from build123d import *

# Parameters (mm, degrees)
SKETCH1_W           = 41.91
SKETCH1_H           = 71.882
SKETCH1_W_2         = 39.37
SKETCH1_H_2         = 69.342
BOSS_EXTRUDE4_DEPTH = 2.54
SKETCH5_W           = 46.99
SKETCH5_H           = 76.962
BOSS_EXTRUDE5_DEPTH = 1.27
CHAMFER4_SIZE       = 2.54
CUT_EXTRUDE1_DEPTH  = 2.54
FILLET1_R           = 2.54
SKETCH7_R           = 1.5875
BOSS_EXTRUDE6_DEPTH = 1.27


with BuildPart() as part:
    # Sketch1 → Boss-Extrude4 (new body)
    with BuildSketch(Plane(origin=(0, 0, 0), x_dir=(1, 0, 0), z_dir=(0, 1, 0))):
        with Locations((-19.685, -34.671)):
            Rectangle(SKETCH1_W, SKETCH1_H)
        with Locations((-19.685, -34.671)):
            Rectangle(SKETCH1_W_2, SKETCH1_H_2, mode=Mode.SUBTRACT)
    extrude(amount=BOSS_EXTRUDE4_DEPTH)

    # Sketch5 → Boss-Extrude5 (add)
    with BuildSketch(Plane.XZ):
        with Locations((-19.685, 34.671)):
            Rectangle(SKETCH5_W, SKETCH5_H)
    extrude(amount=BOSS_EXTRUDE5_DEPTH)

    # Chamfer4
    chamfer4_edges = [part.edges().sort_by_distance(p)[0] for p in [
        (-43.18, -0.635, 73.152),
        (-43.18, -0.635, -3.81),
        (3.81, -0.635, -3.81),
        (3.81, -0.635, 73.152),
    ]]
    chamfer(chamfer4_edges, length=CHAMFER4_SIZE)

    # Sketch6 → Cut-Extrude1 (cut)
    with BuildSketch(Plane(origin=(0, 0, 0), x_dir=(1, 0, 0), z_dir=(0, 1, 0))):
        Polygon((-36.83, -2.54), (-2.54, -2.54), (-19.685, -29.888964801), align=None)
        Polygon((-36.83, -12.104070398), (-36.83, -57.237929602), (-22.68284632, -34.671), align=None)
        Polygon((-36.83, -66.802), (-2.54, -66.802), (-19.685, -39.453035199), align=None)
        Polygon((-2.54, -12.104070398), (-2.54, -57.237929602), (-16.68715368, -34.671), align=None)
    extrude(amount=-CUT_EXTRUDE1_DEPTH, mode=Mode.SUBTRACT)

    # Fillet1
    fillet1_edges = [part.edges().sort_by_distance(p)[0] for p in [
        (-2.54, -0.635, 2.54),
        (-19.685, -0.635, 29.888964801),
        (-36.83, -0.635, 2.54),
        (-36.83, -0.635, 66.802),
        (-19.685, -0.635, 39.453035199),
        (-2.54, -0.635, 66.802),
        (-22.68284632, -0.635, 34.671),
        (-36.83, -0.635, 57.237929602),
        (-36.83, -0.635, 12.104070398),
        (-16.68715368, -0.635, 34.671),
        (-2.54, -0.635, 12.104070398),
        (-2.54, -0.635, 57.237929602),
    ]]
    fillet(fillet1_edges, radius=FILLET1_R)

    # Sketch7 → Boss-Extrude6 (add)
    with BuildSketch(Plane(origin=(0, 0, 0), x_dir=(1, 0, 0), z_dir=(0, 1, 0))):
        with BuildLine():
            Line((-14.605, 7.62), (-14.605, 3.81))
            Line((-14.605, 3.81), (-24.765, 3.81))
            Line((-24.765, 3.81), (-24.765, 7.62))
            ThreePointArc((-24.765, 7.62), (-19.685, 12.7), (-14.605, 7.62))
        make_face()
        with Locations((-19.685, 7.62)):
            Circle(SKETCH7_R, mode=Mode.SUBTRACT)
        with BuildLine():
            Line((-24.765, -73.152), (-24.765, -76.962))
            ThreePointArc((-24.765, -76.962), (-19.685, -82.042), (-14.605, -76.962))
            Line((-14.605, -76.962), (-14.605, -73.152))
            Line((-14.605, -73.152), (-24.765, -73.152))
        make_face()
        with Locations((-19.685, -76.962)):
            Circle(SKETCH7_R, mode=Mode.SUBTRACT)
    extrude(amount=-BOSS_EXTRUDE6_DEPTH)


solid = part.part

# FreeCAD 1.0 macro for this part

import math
import FreeCAD as App
import Part
import Sketcher

V = App.Vector
Q = App.Units.Quantity


def edges_at(feature, points):
    """Names of the edges that pass closest to the given points."""
    edges = feature.Shape.Edges
    near = lambda p: min(range(len(edges)), key=lambda i: edges[i].distToShape(Part.Vertex(*p))[0])
    return sorted({f"Edge{near(p) + 1}" for p in points})


def add_polygon(sketch, points):
    """Adds a closed chain of lines whose ends are joined by coincident constraints."""
    first, n = sketch.GeometryCount, len(points)
    for a, b in zip(points, points[1:] + points[:1]):
        sketch.addGeometry(Part.LineSegment(App.Vector(*a, 0), App.Vector(*b, 0)), False)
    for i in range(n):
        sketch.addConstraint(Sketcher.Constraint("Coincident", first + i, 2, first + (i + 1) % n, 1))

doc = App.newDocument("Part")
body = doc.addObject("PartDesign::Body", "Body")

# Sketch on XZ plane
sketch1 = body.newObject("Sketcher::SketchObject", "Sketch")
sketch1.AttachmentSupport = (doc.getObject("XZ_Plane"), [""])
sketch1.MapMode = "FlatFace"
add_polygon(sketch1, [(-41, -1), (-41, 71), (1, 71), (1, -1)])  # lines 0-3
add_polygon(sketch1, [(0, 69), (-39, 69), (-39, 0), (0, 0)])  # lines 4-7
sketch1.addConstraint(Sketcher.Constraint("Vertical", 0))
sketch1.addConstraint(Sketcher.Constraint("Horizontal", 1))
sketch1.addConstraint(Sketcher.Constraint("Vertical", 2))
sketch1.addConstraint(Sketcher.Constraint("Horizontal", 3))
sketch1.addConstraint(Sketcher.Constraint("Horizontal", 4))
sketch1.addConstraint(Sketcher.Constraint("Vertical", 5))
sketch1.addConstraint(Sketcher.Constraint("Horizontal", 6))
sketch1.addConstraint(Sketcher.Constraint("Vertical", 7))
sketch1.addConstraint(Sketcher.Constraint("Coincident", 6, 2, -1, 1))
sketch1.addConstraint(Sketcher.Constraint("DistanceX", 1, 1, 1, 2, Q("1.65 in")))
sketch1.addConstraint(Sketcher.Constraint("DistanceX", 4, 2, 4, 1, Q("1.55 in")))
sketch1.addConstraint(Sketcher.Constraint("DistanceY", 0, 1, 0, 2, Q("2.83 in")))
sketch1.addConstraint(Sketcher.Constraint("DistanceY", 5, 2, 5, 1, Q("2.73 in")))
sketch1.addConstraint(Sketcher.Constraint("DistanceX", 0, 2, -1, 1, Q("1.6 in")))
sketch1.addConstraint(Sketcher.Constraint("DistanceY", -1, 1, 0, 2, Q("2.78 in")))
pad1 = body.newObject("PartDesign::Pad", "Pad")
pad1.Profile = sketch1
pad1.Length = Q("0.1 in")
pad1.Reversed = True

# Sketch on XZ plane
sketch2 = body.newObject("Sketcher::SketchObject", "Sketch001")
sketch2.AttachmentSupport = (doc.getObject("XZ_Plane"), [""])
sketch2.MapMode = "FlatFace"
add_polygon(sketch2, [(-43, 73), (-43, -4), (4, -4), (4, 73)])  # lines 0-3
sketch2.addConstraint(Sketcher.Constraint("Vertical", 0))
sketch2.addConstraint(Sketcher.Constraint("Horizontal", 1))
sketch2.addConstraint(Sketcher.Constraint("Vertical", 2))
sketch2.addConstraint(Sketcher.Constraint("Horizontal", 3))
sketch2.addConstraint(Sketcher.Constraint("DistanceX", 1, 1, 1, 2, Q("1.85 in")))
sketch2.addConstraint(Sketcher.Constraint("DistanceY", 0, 2, 0, 1, Q("3.03 in")))
sketch2.addConstraint(Sketcher.Constraint("DistanceX", 0, 2, -1, 1, Q("1.7 in")))
sketch2.addConstraint(Sketcher.Constraint("DistanceY", 0, 2, -1, 1, Q("0.15 in")))
pad2 = body.newObject("PartDesign::Pad", "Pad001")
pad2.Profile = sketch2
pad2.Length = Q("0.05 in")
doc.recompute()

chamfer = body.newObject("PartDesign::Chamfer", "Chamfer")
chamfer.Base = (pad2, edges_at(pad2, [
    (-43.18, -0.635, 73.152),
    (-43.18, -0.635, -3.81),
    (3.81, -0.635, -3.81),
    (3.81, -0.635, 73.152),
]))
chamfer.Size = Q("0.1 in")

# Sketch on XZ plane
sketch3 = body.newObject("Sketcher::SketchObject", "Sketch002")
sketch3.AttachmentSupport = (doc.getObject("XZ_Plane"), [""])
sketch3.MapMode = "FlatFace"
add_polygon(sketch3, [(-3, 3), (-37, 3), (-20, 30)])  # lines 0-2
add_polygon(sketch3, [(-37, 12), (-37, 57), (-23, 35)])  # lines 3-5
add_polygon(sketch3, [(-37, 67), (-3, 67), (-20, 39)])  # lines 6-8
add_polygon(sketch3, [(-3, 57), (-3, 12), (-17, 35)])  # lines 9-11
sketch3.addConstraint(Sketcher.Constraint("Horizontal", 0))
sketch3.addConstraint(Sketcher.Constraint("Vertical", 3))
sketch3.addConstraint(Sketcher.Constraint("Horizontal", 6))
sketch3.addConstraint(Sketcher.Constraint("Vertical", 9))
sketch3.addConstraint(Sketcher.Constraint("Parallel", 2, 4))
sketch3.addConstraint(Sketcher.Constraint("Parallel", 1, 5))
sketch3.addConstraint(Sketcher.Constraint("Parallel", 5, 7))
sketch3.addConstraint(Sketcher.Constraint("Parallel", 4, 8))
sketch3.addConstraint(Sketcher.Constraint("Parallel", 8, 10))
sketch3.addConstraint(Sketcher.Constraint("Parallel", 7, 11))
sketch3.addConstraint(Sketcher.Constraint("Horizontal", 5, 2, 9, 2))
sketch3.addConstraint(Sketcher.Constraint("Horizontal", 4, 2, 10, 2))
sketch3.addConstraint(Sketcher.Constraint("Horizontal", 3, 2, 11, 2))
sketch3.addConstraint(Sketcher.Constraint("Vertical", 0, 2, 3, 2))
sketch3.addConstraint(Sketcher.Constraint("Vertical", 2, 2, 6, 2))
sketch3.addConstraint(Sketcher.Constraint("Vertical", 1, 2, 7, 2))
sketch3.addConstraint(Sketcher.Constraint("Vertical", 6, 2, 9, 2))
sketch3.addConstraint(Sketcher.Constraint("DistanceX", 0, 2, 0, 1, Q("1.35 in")))
sketch3.addConstraint(Sketcher.Constraint("DistanceY", -1, 1, 0, 2, Q("0.1 in")))
sketch3.addConstraint(Sketcher.Constraint("DistanceX", 2, 2, -1, 1, Q("0.1 in")))
sketch3.addConstraint(Sketcher.Constraint("DistanceY", -1, 1, 6, 2, Q("2.63 in")))
sketch3.addConstraint(Sketcher.Constraint("DistanceY", -1, 1, 4, 2, Q("1.365 in")))
sketch3.addConstraint(Sketcher.Constraint("DistanceY", 3, 1, 3, 2, 45.133859))
sketch3.addConstraint(Sketcher.Constraint("Distance", 4, 26.634719))
pocket1 = body.newObject("PartDesign::Pocket", "Pocket")
pocket1.Profile = sketch3
pocket1.Length = Q("0.1 in")
pocket1.Reversed = True
doc.recompute()

fillet = body.newObject("PartDesign::Fillet", "Fillet")
fillet.Base = (pocket1, edges_at(pocket1, [
    (-2.54, -0.635, 2.54),
    (-19.685, -0.635, 29.889),
    (-36.83, -0.635, 2.54),
    (-36.83, -0.635, 66.802),
    (-19.685, -0.635, 39.453),
    (-2.54, -0.635, 66.802),
    (-22.683, -0.635, 34.671),
    (-36.83, -0.635, 57.238),
    (-36.83, -0.635, 12.104),
    (-16.687, -0.635, 34.671),
    (-2.54, -0.635, 12.104),
    (-2.54, -0.635, 57.238),
]))
fillet.Radius = Q("0.1 in")

# Sketch on XZ plane
sketch4 = body.newObject("Sketcher::SketchObject", "Sketch003")
sketch4.AttachmentSupport = (doc.getObject("XZ_Plane"), [""])
sketch4.MapMode = "FlatFace"
sketch4.addGeometry(Part.LineSegment(V(-14.6, -3.8, 0), V(-14.6, -7.6, 0)), False)
sketch4.addGeometry(Part.ArcOfCircle(Part.Circle(V(-19.7, -7.6, 0), V(0, 0, 1), 5.1), math.radians(180), math.radians(360)), False)
sketch4.addGeometry(Part.LineSegment(V(-24.8, -7.6, 0), V(-24.8, -3.8, 0)), False)
sketch4.addGeometry(Part.LineSegment(V(-24.8, -3.8, 0), V(-14.6, -3.8, 0)), False)
sketch4.addGeometry(Part.Circle(V(-19.7, -7.6, 0), V(0, 0, 1), 1.6), False)
sketch4.addGeometry(Part.LineSegment(V(-24.8, 73.2, 0), V(-24.8, 77, 0)), False)
sketch4.addGeometry(Part.ArcOfCircle(Part.Circle(V(-19.7, 77, 0), V(0, 0, 1), 5.1), math.radians(0), math.radians(180)), False)
sketch4.addGeometry(Part.LineSegment(V(-14.6, 77, 0), V(-14.6, 73.2, 0)), False)
sketch4.addGeometry(Part.LineSegment(V(-14.6, 73.2, 0), V(-24.8, 73.2, 0)), False)
sketch4.addGeometry(Part.Circle(V(-19.7, 77, 0), V(0, 0, 1), 1.6), False)
sketch4.addConstraint(Sketcher.Constraint("Tangent", 0, 2, 1, 2))
sketch4.addConstraint(Sketcher.Constraint("Tangent", 1, 1, 2, 1))
sketch4.addConstraint(Sketcher.Constraint("Coincident", 2, 2, 3, 1))
sketch4.addConstraint(Sketcher.Constraint("Coincident", 3, 2, 0, 1))
sketch4.addConstraint(Sketcher.Constraint("Tangent", 5, 2, 6, 2))
sketch4.addConstraint(Sketcher.Constraint("Tangent", 6, 1, 7, 1))
sketch4.addConstraint(Sketcher.Constraint("Coincident", 7, 2, 8, 1))
sketch4.addConstraint(Sketcher.Constraint("Coincident", 8, 2, 5, 1))
sketch4.addConstraint(Sketcher.Constraint("Vertical", 0))
sketch4.addConstraint(Sketcher.Constraint("Vertical", 2))
sketch4.addConstraint(Sketcher.Constraint("Horizontal", 3))
sketch4.addConstraint(Sketcher.Constraint("Vertical", 5))
sketch4.addConstraint(Sketcher.Constraint("Vertical", 7))
sketch4.addConstraint(Sketcher.Constraint("Horizontal", 8))
sketch4.addConstraint(Sketcher.Constraint("Coincident", 4, 3, 1, 3))
sketch4.addConstraint(Sketcher.Constraint("Coincident", 9, 3, 6, 3))
sketch4.addConstraint(Sketcher.Constraint("Equal", 1, 6))
sketch4.addConstraint(Sketcher.Constraint("Equal", 4, 9))
sketch4.addConstraint(Sketcher.Constraint("Vertical", 4, 3, 6, 3))
sketch4.addConstraint(Sketcher.Constraint("Equal", 2, 5))
sketch4.addConstraint(Sketcher.Constraint("Radius", 1, Q("0.2 in")))
sketch4.addConstraint(Sketcher.Constraint("Diameter", 4, Q("0.125 in")))
sketch4.addConstraint(Sketcher.Constraint("DistanceY", 0, 2, 0, 1, Q("0.15 in")))
sketch4.addConstraint(Sketcher.Constraint("DistanceY", 1, 3, -1, 1, Q("0.3 in")))
sketch4.addConstraint(Sketcher.Constraint("DistanceY", -1, 1, 6, 3, Q("3.03 in")))
sketch4.addConstraint(Sketcher.Constraint("DistanceX", 1, 3, -1, 1, Q("0.775 in")))
pad3 = body.newObject("PartDesign::Pad", "Pad002")
pad3.Profile = sketch4
pad3.Length = Q("0.05 in")

doc.recompute()
